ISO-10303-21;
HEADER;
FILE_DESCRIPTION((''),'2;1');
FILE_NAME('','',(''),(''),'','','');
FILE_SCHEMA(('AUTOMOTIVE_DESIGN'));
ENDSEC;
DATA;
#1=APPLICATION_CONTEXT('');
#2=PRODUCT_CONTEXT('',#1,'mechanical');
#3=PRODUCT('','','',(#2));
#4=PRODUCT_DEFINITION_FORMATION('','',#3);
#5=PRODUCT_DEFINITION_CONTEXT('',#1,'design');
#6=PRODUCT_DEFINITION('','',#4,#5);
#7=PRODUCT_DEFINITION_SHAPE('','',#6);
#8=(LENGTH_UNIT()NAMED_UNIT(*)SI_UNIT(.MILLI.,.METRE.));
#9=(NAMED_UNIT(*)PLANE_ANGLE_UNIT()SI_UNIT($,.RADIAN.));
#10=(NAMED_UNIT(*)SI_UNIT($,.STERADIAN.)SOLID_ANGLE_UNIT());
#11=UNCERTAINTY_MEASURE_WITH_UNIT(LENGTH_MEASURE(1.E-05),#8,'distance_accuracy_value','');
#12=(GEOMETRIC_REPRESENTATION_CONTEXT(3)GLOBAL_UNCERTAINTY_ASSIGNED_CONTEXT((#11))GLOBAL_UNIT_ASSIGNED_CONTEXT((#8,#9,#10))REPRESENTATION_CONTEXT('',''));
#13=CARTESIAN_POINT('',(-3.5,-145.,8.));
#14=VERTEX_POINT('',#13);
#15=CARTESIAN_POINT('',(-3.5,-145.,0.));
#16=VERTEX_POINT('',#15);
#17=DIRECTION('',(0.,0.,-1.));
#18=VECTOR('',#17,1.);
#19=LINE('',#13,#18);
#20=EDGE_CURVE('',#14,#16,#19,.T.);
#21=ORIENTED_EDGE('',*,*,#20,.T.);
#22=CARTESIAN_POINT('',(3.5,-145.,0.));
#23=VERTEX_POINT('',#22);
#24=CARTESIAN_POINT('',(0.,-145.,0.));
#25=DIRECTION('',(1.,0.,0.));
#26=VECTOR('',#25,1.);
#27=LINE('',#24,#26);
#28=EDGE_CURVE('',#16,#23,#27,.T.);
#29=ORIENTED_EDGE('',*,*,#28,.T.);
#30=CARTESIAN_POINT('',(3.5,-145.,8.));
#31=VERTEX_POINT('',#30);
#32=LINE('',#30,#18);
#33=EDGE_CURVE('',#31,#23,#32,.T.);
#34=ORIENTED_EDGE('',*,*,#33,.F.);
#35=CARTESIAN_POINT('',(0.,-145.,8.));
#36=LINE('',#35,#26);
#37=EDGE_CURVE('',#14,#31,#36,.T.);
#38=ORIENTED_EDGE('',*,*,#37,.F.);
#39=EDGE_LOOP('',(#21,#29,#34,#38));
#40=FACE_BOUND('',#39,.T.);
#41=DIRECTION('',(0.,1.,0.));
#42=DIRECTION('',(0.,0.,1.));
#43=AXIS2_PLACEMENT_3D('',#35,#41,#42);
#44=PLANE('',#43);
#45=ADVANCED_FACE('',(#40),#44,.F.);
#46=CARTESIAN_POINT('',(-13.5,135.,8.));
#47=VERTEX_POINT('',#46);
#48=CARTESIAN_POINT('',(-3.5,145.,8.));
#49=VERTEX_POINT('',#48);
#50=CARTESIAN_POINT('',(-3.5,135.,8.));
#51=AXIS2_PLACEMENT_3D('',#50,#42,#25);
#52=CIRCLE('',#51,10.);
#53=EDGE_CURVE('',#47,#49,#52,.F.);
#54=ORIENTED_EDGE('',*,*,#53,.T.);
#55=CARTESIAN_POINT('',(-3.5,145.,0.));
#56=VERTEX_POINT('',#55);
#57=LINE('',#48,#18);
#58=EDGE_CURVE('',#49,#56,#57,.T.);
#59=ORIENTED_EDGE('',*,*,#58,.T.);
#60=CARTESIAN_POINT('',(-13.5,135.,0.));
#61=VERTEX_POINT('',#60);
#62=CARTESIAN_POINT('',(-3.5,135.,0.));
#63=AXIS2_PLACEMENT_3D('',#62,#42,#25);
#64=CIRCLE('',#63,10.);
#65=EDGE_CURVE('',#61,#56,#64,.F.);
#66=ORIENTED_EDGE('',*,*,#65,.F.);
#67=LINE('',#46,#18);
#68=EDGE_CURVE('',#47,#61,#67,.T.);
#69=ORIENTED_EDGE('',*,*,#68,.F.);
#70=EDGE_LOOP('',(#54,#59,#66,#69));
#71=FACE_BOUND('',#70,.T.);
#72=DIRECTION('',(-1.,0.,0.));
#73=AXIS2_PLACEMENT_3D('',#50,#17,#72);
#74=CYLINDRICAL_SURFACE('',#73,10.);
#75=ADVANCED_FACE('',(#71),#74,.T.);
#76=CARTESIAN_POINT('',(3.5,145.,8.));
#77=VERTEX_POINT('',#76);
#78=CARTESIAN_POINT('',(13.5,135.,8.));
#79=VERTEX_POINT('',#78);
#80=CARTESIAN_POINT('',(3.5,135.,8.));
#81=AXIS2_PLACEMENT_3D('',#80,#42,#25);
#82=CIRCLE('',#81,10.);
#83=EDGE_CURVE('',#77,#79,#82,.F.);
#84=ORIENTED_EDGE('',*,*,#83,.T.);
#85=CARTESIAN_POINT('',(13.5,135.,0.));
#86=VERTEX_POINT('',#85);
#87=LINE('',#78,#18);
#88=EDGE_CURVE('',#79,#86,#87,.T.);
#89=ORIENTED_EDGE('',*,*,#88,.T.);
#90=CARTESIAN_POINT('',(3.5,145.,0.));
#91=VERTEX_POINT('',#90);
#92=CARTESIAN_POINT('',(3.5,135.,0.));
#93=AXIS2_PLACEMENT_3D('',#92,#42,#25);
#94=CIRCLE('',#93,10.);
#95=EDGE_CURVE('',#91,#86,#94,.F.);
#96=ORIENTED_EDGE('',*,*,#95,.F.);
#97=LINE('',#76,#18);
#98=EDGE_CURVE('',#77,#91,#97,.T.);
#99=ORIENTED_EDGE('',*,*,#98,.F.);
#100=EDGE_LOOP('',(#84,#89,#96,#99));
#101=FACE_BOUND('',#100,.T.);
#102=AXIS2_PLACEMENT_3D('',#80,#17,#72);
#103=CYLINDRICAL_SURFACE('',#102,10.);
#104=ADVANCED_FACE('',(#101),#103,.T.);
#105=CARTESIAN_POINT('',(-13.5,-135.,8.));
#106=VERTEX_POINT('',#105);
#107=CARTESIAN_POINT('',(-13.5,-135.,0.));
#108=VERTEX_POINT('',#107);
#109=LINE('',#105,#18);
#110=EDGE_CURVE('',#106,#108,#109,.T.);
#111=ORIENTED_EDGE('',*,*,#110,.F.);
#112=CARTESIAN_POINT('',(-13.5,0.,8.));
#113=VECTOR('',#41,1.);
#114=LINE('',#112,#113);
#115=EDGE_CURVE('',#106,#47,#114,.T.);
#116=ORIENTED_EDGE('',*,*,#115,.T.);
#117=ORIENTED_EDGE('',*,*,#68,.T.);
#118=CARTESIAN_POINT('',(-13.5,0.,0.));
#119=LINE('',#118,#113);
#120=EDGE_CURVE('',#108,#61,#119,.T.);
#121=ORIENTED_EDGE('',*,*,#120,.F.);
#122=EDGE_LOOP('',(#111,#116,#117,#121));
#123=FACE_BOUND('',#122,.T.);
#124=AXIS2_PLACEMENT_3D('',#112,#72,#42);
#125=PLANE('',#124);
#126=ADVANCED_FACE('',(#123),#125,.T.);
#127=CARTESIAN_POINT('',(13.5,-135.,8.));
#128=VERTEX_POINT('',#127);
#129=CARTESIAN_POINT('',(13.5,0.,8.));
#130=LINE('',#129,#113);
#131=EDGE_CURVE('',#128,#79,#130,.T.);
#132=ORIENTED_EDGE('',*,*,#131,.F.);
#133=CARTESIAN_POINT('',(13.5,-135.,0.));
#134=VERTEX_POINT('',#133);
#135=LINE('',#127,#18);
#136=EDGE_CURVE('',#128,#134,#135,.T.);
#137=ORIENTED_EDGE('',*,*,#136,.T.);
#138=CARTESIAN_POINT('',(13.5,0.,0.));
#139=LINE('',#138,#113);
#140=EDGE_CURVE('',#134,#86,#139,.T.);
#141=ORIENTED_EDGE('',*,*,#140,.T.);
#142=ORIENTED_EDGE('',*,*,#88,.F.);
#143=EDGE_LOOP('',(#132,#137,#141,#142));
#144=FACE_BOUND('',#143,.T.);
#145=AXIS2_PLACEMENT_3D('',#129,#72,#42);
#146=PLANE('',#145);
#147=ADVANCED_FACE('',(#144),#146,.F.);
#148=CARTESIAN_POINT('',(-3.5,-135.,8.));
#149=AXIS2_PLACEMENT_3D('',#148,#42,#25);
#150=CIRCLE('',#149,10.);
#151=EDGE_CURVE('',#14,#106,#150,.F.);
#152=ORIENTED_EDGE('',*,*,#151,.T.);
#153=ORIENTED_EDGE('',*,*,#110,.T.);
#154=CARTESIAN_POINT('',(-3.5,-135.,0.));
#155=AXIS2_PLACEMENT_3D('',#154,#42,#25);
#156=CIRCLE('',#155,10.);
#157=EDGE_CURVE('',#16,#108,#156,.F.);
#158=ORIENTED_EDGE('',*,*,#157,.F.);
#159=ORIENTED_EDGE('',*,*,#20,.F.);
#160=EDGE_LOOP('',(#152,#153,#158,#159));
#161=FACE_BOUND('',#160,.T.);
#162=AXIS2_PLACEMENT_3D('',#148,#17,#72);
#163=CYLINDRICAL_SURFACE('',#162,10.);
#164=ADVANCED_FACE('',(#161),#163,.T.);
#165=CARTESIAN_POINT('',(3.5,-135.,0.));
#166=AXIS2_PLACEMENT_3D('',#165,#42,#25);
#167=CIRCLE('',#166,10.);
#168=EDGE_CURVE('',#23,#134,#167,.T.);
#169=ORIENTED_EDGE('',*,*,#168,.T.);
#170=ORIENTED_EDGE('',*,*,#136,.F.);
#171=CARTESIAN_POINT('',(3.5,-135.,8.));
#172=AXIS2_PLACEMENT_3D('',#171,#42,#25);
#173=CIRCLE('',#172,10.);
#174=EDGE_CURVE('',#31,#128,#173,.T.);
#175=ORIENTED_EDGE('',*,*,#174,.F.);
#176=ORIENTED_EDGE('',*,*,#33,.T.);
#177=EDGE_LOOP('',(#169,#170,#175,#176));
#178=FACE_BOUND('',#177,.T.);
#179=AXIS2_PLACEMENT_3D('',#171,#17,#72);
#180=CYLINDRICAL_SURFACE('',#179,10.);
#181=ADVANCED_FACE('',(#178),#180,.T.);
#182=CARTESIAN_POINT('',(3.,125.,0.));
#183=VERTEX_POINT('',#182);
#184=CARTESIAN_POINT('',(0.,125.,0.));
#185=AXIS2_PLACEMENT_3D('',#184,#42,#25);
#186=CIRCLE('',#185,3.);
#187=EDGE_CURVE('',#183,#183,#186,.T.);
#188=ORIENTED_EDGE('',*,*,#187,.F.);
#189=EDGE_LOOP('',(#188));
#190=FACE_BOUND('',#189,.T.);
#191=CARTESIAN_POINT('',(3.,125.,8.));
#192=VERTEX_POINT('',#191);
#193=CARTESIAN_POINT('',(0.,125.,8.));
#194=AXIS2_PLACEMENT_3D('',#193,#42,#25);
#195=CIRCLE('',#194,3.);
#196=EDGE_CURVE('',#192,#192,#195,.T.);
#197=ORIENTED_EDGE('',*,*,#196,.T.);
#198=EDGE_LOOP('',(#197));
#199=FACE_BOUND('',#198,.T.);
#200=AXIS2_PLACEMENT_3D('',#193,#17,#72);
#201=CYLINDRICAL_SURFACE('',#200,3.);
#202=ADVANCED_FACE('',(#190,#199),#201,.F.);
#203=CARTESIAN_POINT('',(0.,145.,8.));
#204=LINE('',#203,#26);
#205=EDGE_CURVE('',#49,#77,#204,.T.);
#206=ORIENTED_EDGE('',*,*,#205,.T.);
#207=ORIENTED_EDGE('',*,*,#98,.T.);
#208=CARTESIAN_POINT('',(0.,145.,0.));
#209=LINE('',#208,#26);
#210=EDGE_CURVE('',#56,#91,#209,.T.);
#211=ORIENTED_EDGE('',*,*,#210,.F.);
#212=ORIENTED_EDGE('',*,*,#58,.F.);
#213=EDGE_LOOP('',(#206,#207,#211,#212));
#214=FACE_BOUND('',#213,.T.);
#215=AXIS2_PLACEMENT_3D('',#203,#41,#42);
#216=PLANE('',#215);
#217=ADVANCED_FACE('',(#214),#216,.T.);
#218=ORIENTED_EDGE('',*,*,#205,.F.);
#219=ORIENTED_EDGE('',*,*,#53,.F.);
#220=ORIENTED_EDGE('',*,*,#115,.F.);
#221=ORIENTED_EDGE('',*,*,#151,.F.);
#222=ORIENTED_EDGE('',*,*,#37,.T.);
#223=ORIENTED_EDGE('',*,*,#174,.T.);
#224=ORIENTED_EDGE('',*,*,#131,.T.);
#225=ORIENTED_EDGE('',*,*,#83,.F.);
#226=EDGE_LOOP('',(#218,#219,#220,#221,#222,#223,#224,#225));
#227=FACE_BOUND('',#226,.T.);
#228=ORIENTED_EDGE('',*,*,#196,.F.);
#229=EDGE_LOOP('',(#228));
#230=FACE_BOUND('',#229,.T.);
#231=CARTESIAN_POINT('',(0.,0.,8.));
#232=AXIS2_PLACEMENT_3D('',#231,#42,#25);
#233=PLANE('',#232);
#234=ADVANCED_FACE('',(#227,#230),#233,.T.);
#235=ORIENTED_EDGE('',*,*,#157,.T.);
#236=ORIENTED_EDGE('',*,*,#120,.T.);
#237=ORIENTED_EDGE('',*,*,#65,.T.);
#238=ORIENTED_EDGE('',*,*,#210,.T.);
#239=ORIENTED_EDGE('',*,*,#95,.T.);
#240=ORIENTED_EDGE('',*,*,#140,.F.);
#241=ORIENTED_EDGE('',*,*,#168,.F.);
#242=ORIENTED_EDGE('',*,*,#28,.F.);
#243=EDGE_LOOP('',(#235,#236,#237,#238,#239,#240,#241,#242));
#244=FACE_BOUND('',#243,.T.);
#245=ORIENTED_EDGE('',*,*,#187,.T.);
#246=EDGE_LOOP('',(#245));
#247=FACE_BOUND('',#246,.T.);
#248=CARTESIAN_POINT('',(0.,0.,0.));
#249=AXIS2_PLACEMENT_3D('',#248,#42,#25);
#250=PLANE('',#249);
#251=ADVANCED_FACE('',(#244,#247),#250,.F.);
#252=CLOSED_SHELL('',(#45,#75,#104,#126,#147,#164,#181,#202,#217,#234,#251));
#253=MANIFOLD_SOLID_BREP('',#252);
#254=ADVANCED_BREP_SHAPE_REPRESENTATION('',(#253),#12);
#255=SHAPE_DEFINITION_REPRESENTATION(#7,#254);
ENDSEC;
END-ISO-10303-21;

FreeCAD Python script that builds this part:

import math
import FreeCAD as App
import Part
import Sketcher
from FreeCAD import Vector

doc = App.newDocument("Part")
params = doc.addObject("Spreadsheet::Sheet", "Params")
for row, (alias, value) in enumerate([
    ("sketch1_diameter", "6 mm"),
    ("sketch1_radius", "10 mm"),
    ("sketch1_width", "7 mm"),
    ("sketch1_height", "270 mm"),
    ("pad1_length", "8 mm"),
], start=1):
    params.set(f"A{row}", alias)
    params.set(f"B{row}", "=" + value)
    params.setAlias(f"B{row}", alias)

body = doc.addObject("PartDesign::Body", "Body")

sketch1 = doc.addObject("Sketcher::SketchObject", "Sketch")
body.addObject(sketch1)
sketch1.AttachmentSupport = (doc.XY_Plane, [""])
sketch1.MapMode = "FlatFace"
sketch1.addGeometry([
    Part.ArcOfCircle(Part.Circle(Vector(3.5, 135, 0), Vector(0, 0, 1), 10), math.radians(0), math.radians(90)),
    Part.LineSegment(Vector(3.5, 145, 0), Vector(-3.5, 145, 0)),
    Part.ArcOfCircle(Part.Circle(Vector(-3.5, 135, 0), Vector(0, 0, 1), 10), math.radians(90), math.radians(180)),
    Part.LineSegment(Vector(-13.5, 135, 0), Vector(-13.5, -135, 0)),
    Part.ArcOfCircle(Part.Circle(Vector(-3.5, -135, 0), Vector(0, 0, 1), 10), math.radians(180), math.radians(270)),
    Part.LineSegment(Vector(-3.5, -145, 0), Vector(3.5, -145, 0)),
    Part.ArcOfCircle(Part.Circle(Vector(3.5, -135, 0), Vector(0, 0, 1), 10), math.radians(-90), math.radians(0)),
    Part.LineSegment(Vector(13.5, -135, 0), Vector(13.5, 135, 0)),
    Part.Circle(Vector(0, 125, 0), Vector(0, 0, 1), 3),
], False)
sketch1.addConstraint([
    Sketcher.Constraint("Tangent", 0, 2, 1, 1),
    Sketcher.Constraint("Tangent", 1, 2, 2, 1),
    Sketcher.Constraint("Tangent", 2, 2, 3, 1),
    Sketcher.Constraint("Tangent", 3, 2, 4, 1),
    Sketcher.Constraint("Tangent", 4, 2, 5, 1),
    Sketcher.Constraint("Tangent", 5, 2, 6, 1),
    Sketcher.Constraint("Tangent", 6, 2, 7, 1),
    Sketcher.Constraint("Tangent", 7, 2, 0, 1),
    Sketcher.Constraint("Horizontal", 1),
    Sketcher.Constraint("Vertical", 3),
    Sketcher.Constraint("Horizontal", 5),
    Sketcher.Constraint("Vertical", 7),
    Sketcher.Constraint("Equal", 0, 2),
    Sketcher.Constraint("Equal", 2, 4),
    Sketcher.Constraint("Equal", 4, 6),
    Sketcher.Constraint("Symmetric", 0, 3, 4, 3, -1, 1),
    Sketcher.Constraint("PointOnObject", 8, 3, -2),
    Sketcher.Constraint("Diameter", 8, 6.0),
    Sketcher.Constraint("Radius", 0, 10.0),
    Sketcher.Constraint("DistanceX", 1, 2, 1, 1, 7.0),
    Sketcher.Constraint("DistanceY", 3, 2, 3, 1, 270.0),
    Sketcher.Constraint("DistanceY", -1, 1, 8, 3, 125.0),
])
sketch1.setExpression("Constraints[17]", "Params.sketch1_diameter")
sketch1.setExpression("Constraints[18]", "Params.sketch1_radius")
sketch1.setExpression("Constraints[19]", "Params.sketch1_width")
sketch1.setExpression("Constraints[20]", "Params.sketch1_height")
pad1 = doc.addObject("PartDesign::Pad", "Pad")
body.addObject(pad1)
pad1.Profile = sketch1
pad1.setExpression("Length", "Params.pad1_length")

doc.recompute()
